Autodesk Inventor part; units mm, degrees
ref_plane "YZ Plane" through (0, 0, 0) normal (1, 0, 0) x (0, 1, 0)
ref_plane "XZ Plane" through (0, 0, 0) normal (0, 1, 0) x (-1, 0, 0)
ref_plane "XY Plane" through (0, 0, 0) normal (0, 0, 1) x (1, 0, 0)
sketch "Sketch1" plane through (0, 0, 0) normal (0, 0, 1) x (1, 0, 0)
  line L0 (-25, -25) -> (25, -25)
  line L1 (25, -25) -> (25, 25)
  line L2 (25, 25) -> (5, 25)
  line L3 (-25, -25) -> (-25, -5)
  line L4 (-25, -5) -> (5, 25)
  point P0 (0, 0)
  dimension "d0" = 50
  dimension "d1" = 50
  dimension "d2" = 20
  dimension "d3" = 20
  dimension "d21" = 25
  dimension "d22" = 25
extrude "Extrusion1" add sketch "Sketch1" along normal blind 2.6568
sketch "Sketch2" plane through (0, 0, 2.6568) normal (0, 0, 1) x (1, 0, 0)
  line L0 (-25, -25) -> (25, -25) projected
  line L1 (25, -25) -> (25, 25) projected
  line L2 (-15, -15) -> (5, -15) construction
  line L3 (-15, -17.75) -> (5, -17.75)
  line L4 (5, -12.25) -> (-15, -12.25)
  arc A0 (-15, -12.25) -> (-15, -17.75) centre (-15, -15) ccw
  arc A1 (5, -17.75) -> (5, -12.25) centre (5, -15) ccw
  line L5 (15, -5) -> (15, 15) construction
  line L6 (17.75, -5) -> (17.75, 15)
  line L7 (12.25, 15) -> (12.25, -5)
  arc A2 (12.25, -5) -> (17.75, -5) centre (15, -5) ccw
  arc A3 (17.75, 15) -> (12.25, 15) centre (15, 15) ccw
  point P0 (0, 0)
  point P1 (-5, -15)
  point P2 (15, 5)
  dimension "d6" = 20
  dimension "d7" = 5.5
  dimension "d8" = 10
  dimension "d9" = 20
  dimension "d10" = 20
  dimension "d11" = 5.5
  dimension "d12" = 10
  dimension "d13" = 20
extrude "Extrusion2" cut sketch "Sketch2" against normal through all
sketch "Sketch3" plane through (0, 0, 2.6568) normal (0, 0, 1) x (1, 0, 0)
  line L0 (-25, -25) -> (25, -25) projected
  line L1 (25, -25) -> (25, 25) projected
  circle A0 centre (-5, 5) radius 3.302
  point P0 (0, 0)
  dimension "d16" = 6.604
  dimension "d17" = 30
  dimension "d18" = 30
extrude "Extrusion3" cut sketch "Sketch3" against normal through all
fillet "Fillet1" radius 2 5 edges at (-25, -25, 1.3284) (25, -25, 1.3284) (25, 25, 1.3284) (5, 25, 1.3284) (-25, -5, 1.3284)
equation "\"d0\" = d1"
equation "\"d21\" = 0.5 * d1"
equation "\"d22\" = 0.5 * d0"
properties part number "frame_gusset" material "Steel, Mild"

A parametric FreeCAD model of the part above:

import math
import FreeCAD as App
import Part
import Sketcher
from FreeCAD import Vector


def edges_at(feature, points):
    """Names of the edges that pass closest to the given points."""
    edges = feature.Shape.Edges
    near = lambda p: min(range(len(edges)), key=lambda i: edges[i].distToShape(Part.Vertex(*p))[0])
    return sorted({f"Edge{near(p) + 1}" for p in points})

doc = App.newDocument("Part")
body = doc.addObject("PartDesign::Body", "Body")

# Sketch on XY plane
sketch1 = body.newObject("Sketcher::SketchObject", "Sketch")
sketch1.AttachmentSupport = (doc.getObject("XY_Plane"), [""])
sketch1.MapMode = "FlatFace"
sketch1.addGeometry([
    Part.LineSegment(Vector(-25, -5, 0), Vector(-25, -25, 0)),  # 0
    Part.LineSegment(Vector(-25, -25, 0), Vector(25, -25, 0)),  # 1
    Part.LineSegment(Vector(25, -25, 0), Vector(25, 25, 0)),  # 2
    Part.LineSegment(Vector(25, 25, 0), Vector(5, 25, 0)),  # 3
    Part.LineSegment(Vector(5, 25, 0), Vector(-25, -5, 0)),  # 4
], False)
sketch1.addConstraint([
    Sketcher.Constraint("Coincident", 0, 2, 1, 1),
    Sketcher.Constraint("Coincident", 1, 2, 2, 1),
    Sketcher.Constraint("Coincident", 2, 2, 3, 1),
    Sketcher.Constraint("Coincident", 3, 2, 4, 1),
    Sketcher.Constraint("Coincident", 4, 2, 0, 1),
    Sketcher.Constraint("Vertical", 0),
    Sketcher.Constraint("Horizontal", 1),
    Sketcher.Constraint("Vertical", 2),
    Sketcher.Constraint("Horizontal", 3),
    Sketcher.Constraint("Symmetric", 0, 2, 2, 2, -1, 1),
    Sketcher.Constraint("Equal", 3, 0),
    Sketcher.Constraint("Equal", 1, 2),
    Sketcher.Constraint("DistanceX", 1, 1, 1, 2, 50.0),
    Sketcher.Constraint("DistanceX", 3, 2, 3, 1, 20.0),
])
pad1 = body.newObject("PartDesign::Pad", "Pad")
pad1.Profile = sketch1
pad1.Length = 2.6568

# Sketch on XY plane
sketch2 = body.newObject("Sketcher::SketchObject", "Sketch001")
sketch2.AttachmentSupport = (doc.getObject("XY_Plane"), [""])
sketch2.MapMode = "FlatFace"
sketch2.AttachmentOffset = App.Placement(Vector(0, 0, 2.6568), App.Rotation())
sketch2.addGeometry([
    Part.ArcOfCircle(Part.Circle(Vector(-15, -15, 0), Vector(0, 0, 1), 2.75), math.radians(90), math.radians(270)),  # 0
    Part.LineSegment(Vector(-15, -17.75, 0), Vector(5, -17.75, 0)),  # 1
    Part.ArcOfCircle(Part.Circle(Vector(5, -15, 0), Vector(0, 0, 1), 2.75), math.radians(-90), math.radians(90)),  # 2
    Part.LineSegment(Vector(5, -12.25, 0), Vector(-15, -12.25, 0)),  # 3
    Part.ArcOfCircle(Part.Circle(Vector(15, -5, 0), Vector(0, 0, 1), 2.75), math.radians(180), math.radians(360)),  # 4
    Part.LineSegment(Vector(17.75, -5, 0), Vector(17.75, 15, 0)),  # 5
    Part.ArcOfCircle(Part.Circle(Vector(15, 15, 0), Vector(0, 0, 1), 2.75), math.radians(0), math.radians(180)),  # 6
    Part.LineSegment(Vector(12.25, 15, 0), Vector(12.25, -5, 0)),  # 7
], False)
sketch2.addConstraint([
    Sketcher.Constraint("Tangent", 0, 2, 1, 1),
    Sketcher.Constraint("Tangent", 1, 2, 2, 1),
    Sketcher.Constraint("Tangent", 2, 2, 3, 1),
    Sketcher.Constraint("Tangent", 3, 2, 0, 1),
    Sketcher.Constraint("Tangent", 4, 2, 5, 1),
    Sketcher.Constraint("Tangent", 5, 2, 6, 1),
    Sketcher.Constraint("Tangent", 6, 2, 7, 1),
    Sketcher.Constraint("Tangent", 7, 2, 4, 1),
    Sketcher.Constraint("Horizontal", 1),
    Sketcher.Constraint("Horizontal", 3),
    Sketcher.Constraint("Vertical", 5),
    Sketcher.Constraint("Vertical", 7),
    Sketcher.Constraint("Equal", 2, 4),
    Sketcher.Constraint("Symmetric", 0, 3, 6, 3, -1, 1),
    Sketcher.Constraint("Equal", 3, 5),
    Sketcher.Constraint("DistanceX", 1, 1, 1, 2, 20.0),
    Sketcher.Constraint("Radius", 0, 2.75),
    Sketcher.Constraint("DistanceX", 2, 3, 4, 3, 10.0),
    Sketcher.Constraint("DistanceY", 2, 3, 4, 3, 10.0),
])
pocket1 = body.newObject("PartDesign::Pocket", "Pocket")
pocket1.Profile = sketch2
pocket1.Type = "ThroughAll"

# Sketch on XY plane
sketch3 = body.newObject("Sketcher::SketchObject", "Sketch002")
sketch3.AttachmentSupport = (doc.getObject("XY_Plane"), [""])
sketch3.MapMode = "FlatFace"
sketch3.AttachmentOffset = App.Placement(Vector(0, 0, 2.6568), App.Rotation())
sketch3.addGeometry(Part.Circle(Vector(-5, 5, 0), Vector(0, 0, 1), 3.302), False)
sketch3.addConstraint([
    Sketcher.Constraint("Diameter", 0, 6.604),
    Sketcher.Constraint("DistanceX", 0, 3, -1, 1, 5.0),
    Sketcher.Constraint("DistanceY", -1, 1, 0, 3, 5.0),
])
pocket2 = body.newObject("PartDesign::Pocket", "Pocket001")
pocket2.Profile = sketch3
pocket2.Type = "ThroughAll"
doc.recompute()

fillet = body.newObject("PartDesign::Fillet", "Fillet")
fillet.Base = (pocket2, edges_at(pocket2, [
    (-25, -25, 1.328),
    (25, -25, 1.328),
    (25, 25, 1.328),
    (5, 25, 1.328),
    (-25, -5, 1.328),
]))
fillet.Radius = 2

doc.recompute()
